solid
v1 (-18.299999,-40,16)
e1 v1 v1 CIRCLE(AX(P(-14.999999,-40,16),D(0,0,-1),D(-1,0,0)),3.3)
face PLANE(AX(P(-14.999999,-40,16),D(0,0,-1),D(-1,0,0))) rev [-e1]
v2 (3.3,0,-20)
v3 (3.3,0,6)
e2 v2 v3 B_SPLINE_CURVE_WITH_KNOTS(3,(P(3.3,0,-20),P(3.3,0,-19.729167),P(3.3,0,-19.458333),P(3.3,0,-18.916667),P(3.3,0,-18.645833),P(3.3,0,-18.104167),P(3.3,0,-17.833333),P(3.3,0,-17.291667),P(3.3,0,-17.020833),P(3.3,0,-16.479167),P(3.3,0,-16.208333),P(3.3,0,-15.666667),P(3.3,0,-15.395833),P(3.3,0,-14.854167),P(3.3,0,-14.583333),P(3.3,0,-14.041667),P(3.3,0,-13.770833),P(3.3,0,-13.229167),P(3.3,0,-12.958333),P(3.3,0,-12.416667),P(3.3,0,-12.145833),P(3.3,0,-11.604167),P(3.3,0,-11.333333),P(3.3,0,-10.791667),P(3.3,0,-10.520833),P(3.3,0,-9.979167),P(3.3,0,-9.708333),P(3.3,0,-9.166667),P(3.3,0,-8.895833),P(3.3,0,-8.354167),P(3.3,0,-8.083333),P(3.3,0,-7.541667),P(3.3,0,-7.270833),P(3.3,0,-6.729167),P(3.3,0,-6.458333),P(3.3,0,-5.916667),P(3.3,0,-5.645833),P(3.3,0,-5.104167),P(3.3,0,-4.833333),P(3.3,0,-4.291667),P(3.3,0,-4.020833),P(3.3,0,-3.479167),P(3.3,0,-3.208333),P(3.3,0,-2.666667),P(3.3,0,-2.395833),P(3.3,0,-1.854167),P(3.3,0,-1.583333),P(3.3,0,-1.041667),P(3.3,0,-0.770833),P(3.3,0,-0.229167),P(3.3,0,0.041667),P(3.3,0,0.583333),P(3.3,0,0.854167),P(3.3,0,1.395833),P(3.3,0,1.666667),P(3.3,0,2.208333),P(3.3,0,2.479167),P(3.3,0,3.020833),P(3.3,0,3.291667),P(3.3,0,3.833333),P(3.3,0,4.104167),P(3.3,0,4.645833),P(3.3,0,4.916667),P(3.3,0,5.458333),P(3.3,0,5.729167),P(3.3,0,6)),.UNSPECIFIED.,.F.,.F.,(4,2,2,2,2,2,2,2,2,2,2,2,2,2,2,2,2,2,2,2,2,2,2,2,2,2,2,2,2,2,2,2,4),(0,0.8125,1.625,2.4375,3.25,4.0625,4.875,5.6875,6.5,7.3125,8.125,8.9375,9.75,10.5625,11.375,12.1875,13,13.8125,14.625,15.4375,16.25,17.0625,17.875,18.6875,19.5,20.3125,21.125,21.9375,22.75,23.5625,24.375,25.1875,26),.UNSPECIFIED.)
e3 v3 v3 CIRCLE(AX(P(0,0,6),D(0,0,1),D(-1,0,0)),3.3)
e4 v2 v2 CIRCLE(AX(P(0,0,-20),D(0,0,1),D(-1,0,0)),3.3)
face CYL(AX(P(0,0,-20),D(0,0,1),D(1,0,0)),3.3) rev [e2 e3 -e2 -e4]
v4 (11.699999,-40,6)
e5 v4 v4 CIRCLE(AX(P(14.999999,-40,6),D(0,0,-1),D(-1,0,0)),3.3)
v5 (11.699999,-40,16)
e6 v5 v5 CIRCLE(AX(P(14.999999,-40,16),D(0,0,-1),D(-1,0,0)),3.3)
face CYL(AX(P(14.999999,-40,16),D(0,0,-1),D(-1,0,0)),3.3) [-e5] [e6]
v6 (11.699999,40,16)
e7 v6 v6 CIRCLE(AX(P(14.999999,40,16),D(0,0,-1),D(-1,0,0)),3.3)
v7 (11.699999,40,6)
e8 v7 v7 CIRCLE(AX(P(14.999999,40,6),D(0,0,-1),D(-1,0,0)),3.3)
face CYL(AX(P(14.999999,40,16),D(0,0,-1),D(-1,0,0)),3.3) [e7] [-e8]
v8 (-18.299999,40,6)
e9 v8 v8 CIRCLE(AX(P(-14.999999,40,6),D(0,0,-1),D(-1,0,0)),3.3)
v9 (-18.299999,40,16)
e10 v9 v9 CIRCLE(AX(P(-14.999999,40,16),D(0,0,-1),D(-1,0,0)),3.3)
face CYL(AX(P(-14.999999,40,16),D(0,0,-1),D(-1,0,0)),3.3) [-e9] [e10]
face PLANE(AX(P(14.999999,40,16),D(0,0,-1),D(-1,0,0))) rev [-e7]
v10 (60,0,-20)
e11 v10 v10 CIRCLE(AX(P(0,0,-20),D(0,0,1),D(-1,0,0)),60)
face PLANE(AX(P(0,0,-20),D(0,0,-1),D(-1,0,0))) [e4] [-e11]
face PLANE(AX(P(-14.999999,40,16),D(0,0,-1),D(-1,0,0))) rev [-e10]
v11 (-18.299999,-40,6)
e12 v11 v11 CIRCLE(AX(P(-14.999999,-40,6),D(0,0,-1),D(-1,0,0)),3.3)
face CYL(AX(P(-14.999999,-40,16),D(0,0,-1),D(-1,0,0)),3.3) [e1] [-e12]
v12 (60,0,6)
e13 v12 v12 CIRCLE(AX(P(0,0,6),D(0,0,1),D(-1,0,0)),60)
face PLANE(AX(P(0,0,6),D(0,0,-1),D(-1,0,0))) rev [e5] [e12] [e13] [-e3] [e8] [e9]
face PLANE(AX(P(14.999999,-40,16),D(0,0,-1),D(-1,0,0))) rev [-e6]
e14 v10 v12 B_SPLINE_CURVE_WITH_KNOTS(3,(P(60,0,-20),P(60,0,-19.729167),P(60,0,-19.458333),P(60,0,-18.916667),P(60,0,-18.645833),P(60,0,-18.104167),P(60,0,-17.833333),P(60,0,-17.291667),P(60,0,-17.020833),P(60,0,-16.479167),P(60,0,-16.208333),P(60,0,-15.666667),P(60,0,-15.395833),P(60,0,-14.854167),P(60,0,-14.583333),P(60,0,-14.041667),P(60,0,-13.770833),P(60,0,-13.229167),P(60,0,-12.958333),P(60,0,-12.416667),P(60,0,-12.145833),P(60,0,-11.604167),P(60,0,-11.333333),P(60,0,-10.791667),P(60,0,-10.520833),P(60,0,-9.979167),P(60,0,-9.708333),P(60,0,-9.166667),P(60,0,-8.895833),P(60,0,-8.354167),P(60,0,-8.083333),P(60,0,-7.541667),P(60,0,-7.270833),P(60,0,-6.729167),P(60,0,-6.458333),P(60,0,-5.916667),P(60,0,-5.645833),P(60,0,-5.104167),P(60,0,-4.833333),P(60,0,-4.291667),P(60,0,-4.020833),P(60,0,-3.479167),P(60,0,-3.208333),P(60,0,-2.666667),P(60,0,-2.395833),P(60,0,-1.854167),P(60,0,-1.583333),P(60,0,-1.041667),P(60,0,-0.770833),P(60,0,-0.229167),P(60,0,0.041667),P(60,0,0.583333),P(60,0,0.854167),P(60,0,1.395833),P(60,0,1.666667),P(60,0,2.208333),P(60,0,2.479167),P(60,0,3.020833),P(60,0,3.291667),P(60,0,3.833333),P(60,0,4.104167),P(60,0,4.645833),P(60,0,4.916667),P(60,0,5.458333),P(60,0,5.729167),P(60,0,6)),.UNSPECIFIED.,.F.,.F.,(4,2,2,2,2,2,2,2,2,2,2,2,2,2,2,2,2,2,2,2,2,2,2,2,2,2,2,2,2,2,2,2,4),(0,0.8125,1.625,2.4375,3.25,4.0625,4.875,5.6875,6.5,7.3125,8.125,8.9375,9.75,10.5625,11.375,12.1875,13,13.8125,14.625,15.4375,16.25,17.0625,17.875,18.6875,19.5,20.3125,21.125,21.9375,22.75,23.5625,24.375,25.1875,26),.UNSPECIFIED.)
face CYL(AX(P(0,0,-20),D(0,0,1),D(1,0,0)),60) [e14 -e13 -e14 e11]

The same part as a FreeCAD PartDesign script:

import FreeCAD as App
import Part
import Sketcher
from FreeCAD import Vector
Q = App.Units.Quantity

doc = App.newDocument("Part")
body = doc.addObject("PartDesign::Body", "Body")

# Sketch on XY plane
sketch1 = body.newObject("Sketcher::SketchObject", "Sketch")
sketch1.AttachmentSupport = (doc.getObject("XY_Plane"), [""])
sketch1.MapMode = "FlatFace"
sketch1.AttachmentOffset = App.Placement(Vector(0, 0, 6), App.Rotation())
sketch1.addGeometry(Part.Circle(Vector(0, 0, 0), Vector(0, 0, 1), 60), False)
sketch1.addGeometry(Part.Circle(Vector(0, 0, 0), Vector(0, 0, 1), 3.3), False)
sketch1.addConstraint(Sketcher.Constraint("Coincident", 0, 3, -1, 1))
sketch1.addConstraint(Sketcher.Constraint("Coincident", 1, 3, -1, 1))
sketch1.addConstraint(Sketcher.Constraint("Diameter", 0, Q("120 mm")))
sketch1.addConstraint(Sketcher.Constraint("Diameter", 1, Q("6.6 mm")))
pad1 = body.newObject("PartDesign::Pad", "Pad")
pad1.Profile = sketch1
pad1.Length = 26
pad1.Reversed = True

# Sketch on XY plane
sketch2 = body.newObject("Sketcher::SketchObject", "Sketch001")
sketch2.AttachmentSupport = (doc.getObject("XY_Plane"), [""])
sketch2.MapMode = "FlatFace"
sketch2.AttachmentOffset = App.Placement(Vector(0, 0, -20), App.Rotation())
sketch2.addGeometry(Part.Circle(Vector(15, 40, 0), Vector(0, 0, 1), 3.3), False)
sketch2.addGeometry(Part.Circle(Vector(-15, 40, 0), Vector(0, 0, 1), 3.3), False)
sketch2.addGeometry(Part.Circle(Vector(15, -40, 0), Vector(0, 0, 1), 3.3), False)
sketch2.addGeometry(Part.Circle(Vector(-15, -40, 0), Vector(0, 0, 1), 3.3), False)
sketch2.addConstraint(Sketcher.Constraint("Equal", 0, 1))
sketch2.addConstraint(Sketcher.Constraint("Equal", 1, 2))
sketch2.addConstraint(Sketcher.Constraint("Equal", 2, 3))
sketch2.addConstraint(Sketcher.Constraint("Symmetric", 1, 3, 2, 3, -1, 1))
sketch2.addConstraint(Sketcher.Constraint("Symmetric", 0, 3, 3, 3, -1, 1))
sketch2.addConstraint(Sketcher.Constraint("Symmetric", 0, 3, 1, 3, -2))
sketch2.addConstraint(Sketcher.Constraint("Diameter", 0, Q("6.6 mm")))
sketch2.addConstraint(Sketcher.Constraint("DistanceX", -1, 1, 0, 3, Q("14.999999 mm")))
sketch2.addConstraint(Sketcher.Constraint("DistanceY", -1, 1, 0, 3, Q("40 mm")))
pad2 = body.newObject("PartDesign::Pad", "Pad001")
pad2.Profile = sketch2
pad2.Length = 36

doc.recompute()
